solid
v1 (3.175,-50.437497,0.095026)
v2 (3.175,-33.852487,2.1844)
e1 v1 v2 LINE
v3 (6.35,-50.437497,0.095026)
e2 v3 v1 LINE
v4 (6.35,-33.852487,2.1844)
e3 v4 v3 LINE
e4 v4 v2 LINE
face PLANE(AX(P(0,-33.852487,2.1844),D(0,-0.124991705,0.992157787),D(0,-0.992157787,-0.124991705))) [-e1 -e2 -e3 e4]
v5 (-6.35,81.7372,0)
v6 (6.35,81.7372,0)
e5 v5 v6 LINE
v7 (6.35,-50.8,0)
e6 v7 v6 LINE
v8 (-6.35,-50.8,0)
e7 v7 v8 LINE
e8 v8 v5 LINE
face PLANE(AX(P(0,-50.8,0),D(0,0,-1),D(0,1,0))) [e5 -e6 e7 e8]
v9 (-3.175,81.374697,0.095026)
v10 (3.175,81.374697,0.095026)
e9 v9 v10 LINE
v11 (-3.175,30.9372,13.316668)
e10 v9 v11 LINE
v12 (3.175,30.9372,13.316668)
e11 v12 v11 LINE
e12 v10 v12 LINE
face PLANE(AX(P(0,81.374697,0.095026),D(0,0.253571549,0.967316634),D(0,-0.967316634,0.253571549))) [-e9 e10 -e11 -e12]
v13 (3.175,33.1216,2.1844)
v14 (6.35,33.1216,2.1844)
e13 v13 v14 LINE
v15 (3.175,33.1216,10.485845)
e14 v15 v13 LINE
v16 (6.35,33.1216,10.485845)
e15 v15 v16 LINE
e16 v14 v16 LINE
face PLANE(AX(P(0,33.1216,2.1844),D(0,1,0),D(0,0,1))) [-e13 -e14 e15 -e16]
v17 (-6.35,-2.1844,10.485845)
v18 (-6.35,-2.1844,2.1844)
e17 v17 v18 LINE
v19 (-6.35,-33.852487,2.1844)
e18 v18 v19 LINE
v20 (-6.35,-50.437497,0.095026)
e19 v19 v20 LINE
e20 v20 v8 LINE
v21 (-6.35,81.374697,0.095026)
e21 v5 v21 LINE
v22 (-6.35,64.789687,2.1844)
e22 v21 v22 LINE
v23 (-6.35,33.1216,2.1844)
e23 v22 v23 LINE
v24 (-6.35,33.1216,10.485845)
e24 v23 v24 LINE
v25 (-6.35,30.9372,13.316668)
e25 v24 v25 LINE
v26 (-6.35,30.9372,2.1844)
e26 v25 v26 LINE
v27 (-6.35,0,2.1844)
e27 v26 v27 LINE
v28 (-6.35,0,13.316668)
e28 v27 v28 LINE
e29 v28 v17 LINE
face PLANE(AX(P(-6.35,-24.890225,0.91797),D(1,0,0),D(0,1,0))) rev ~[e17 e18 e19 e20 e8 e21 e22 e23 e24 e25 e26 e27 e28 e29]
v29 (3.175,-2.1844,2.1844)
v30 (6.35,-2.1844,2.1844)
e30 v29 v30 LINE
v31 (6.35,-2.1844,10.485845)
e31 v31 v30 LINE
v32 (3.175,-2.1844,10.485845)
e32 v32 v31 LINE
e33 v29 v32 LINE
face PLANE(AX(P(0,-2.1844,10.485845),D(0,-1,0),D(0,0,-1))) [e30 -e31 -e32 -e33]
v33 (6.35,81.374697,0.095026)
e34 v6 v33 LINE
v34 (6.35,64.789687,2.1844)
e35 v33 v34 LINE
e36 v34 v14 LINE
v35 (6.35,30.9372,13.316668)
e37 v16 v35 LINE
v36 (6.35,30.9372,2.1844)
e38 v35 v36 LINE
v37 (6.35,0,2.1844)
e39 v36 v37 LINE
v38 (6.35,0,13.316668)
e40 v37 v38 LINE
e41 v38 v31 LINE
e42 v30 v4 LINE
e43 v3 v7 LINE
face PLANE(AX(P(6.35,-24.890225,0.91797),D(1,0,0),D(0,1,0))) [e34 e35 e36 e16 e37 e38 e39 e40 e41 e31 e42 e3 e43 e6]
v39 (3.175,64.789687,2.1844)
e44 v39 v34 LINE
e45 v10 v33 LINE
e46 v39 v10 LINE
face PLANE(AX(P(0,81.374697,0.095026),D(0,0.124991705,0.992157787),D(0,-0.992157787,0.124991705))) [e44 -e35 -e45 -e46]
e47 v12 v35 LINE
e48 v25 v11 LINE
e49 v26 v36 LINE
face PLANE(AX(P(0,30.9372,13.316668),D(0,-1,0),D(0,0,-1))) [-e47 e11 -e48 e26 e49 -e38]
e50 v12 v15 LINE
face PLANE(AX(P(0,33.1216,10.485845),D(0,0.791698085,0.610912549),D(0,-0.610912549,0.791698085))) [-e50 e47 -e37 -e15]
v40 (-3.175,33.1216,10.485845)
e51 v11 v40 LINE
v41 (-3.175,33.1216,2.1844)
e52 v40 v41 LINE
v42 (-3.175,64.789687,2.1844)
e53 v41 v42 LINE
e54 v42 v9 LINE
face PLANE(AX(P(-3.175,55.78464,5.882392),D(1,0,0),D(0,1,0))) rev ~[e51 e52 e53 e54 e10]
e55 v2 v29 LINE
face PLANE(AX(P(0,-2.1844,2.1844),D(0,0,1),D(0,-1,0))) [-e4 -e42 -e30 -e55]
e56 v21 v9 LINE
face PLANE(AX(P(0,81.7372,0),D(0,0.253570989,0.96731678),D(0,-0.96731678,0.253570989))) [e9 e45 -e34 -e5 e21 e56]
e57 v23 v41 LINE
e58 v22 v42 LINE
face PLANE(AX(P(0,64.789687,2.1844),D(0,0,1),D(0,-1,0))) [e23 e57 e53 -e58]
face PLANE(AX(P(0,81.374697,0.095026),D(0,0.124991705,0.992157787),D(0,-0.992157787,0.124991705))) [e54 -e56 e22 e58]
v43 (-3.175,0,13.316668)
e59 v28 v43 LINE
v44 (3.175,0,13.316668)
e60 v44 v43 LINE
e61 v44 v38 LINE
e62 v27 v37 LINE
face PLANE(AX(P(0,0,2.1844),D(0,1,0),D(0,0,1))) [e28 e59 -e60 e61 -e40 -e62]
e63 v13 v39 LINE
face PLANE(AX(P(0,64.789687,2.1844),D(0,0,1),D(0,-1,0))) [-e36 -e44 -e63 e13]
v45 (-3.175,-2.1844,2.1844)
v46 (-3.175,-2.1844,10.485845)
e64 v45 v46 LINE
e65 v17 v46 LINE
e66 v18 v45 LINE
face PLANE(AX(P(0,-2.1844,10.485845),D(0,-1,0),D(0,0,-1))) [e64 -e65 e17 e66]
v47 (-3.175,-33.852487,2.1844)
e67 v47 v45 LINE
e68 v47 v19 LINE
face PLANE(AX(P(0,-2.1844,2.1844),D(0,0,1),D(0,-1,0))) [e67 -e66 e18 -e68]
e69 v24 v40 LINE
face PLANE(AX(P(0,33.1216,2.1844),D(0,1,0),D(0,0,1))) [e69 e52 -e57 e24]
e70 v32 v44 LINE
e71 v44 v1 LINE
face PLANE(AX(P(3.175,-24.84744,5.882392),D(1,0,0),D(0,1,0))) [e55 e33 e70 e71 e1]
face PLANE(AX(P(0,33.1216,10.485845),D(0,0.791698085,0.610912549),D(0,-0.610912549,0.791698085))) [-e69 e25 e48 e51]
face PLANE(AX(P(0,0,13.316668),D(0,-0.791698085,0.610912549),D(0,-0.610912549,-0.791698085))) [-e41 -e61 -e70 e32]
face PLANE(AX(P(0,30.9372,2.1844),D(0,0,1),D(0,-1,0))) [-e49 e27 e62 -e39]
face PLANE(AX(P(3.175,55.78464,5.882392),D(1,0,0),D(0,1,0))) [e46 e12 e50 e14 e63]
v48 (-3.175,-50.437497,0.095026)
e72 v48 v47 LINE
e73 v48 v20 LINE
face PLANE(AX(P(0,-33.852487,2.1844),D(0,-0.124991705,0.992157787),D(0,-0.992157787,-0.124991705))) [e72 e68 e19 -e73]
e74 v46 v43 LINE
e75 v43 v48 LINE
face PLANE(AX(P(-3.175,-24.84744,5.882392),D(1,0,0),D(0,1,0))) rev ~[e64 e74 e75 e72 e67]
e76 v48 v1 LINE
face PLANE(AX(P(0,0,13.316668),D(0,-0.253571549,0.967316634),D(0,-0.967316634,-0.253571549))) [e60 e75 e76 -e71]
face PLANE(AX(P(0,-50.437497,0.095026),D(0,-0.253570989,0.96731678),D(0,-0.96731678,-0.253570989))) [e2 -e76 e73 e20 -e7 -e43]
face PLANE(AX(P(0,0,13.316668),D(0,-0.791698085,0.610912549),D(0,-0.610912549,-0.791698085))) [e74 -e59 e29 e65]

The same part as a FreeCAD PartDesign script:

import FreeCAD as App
import Part
import Sketcher
Q = App.Units.Quantity


def add_polygon(sketch, points):
    """Adds a closed chain of lines whose ends are joined by coincident constraints."""
    first, n = sketch.GeometryCount, len(points)
    for a, b in zip(points, points[1:] + points[:1]):
        sketch.addGeometry(Part.LineSegment(App.Vector(*a, 0), App.Vector(*b, 0)), False)
    for i in range(n):
        sketch.addConstraint(Sketcher.Constraint("Coincident", first + i, 2, first + (i + 1) % n, 1))

doc = App.newDocument("Part")
body = doc.addObject("PartDesign::Body", "Body")

# Sketch on YZ plane
sketch1 = doc.addObject("Sketcher::SketchObject", "Sketch")
body.addObject(sketch1)
sketch1.AttachmentSupport = (doc.YZ_Plane, [""])
sketch1.MapMode = "FlatFace"
add_polygon(sketch1, [(-50.8, 0), (81.74, 0), (81.37, 0.1), (64.79, 2.18), (33.12, 2.18), (33.12, 10.49), (30.94, 13.32), (30.94, 2.18), (0, 2.18), (0, 13.32), (-2.18, 10.49), (-2.18, 2.18), (-33.85, 2.18), (-50.44, 0.1)])  # lines 0-13
sketch1.addConstraint(Sketcher.Constraint("Horizontal", 0))
sketch1.addConstraint(Sketcher.Constraint("Horizontal", 3))
sketch1.addConstraint(Sketcher.Constraint("Vertical", 4))
sketch1.addConstraint(Sketcher.Constraint("Vertical", 6))
sketch1.addConstraint(Sketcher.Constraint("Horizontal", 7))
sketch1.addConstraint(Sketcher.Constraint("Vertical", 8))
sketch1.addConstraint(Sketcher.Constraint("Vertical", 10))
sketch1.addConstraint(Sketcher.Constraint("Horizontal", 11))
sketch1.addConstraint(Sketcher.Constraint("PointOnObject", 0, 2, -1))
sketch1.addConstraint(Sketcher.Constraint("PointOnObject", 7, 2, -2))
sketch1.addConstraint(Sketcher.Constraint("Horizontal", 3, 2, 6, 2))
sketch1.addConstraint(Sketcher.Constraint("Horizontal", 5, 2, 8, 2))
sketch1.addConstraint(Sketcher.Constraint("Horizontal", 4, 2, 9, 2))
sketch1.addConstraint(Sketcher.Constraint("Horizontal", 7, 2, 10, 2))
sketch1.addConstraint(Sketcher.Constraint("Horizontal", 1, 2, 12, 2))
sketch1.addConstraint(Sketcher.Constraint("Equal", 3, 11))
sketch1.addConstraint(Sketcher.Constraint("Equal", 5, 9))
sketch1.addConstraint(Sketcher.Constraint("Equal", 2, 12))
sketch1.addConstraint(Sketcher.Constraint("Equal", 1, 13))
sketch1.addConstraint(Sketcher.Constraint("DistanceX", 13, 2, -1, 1, Q("2 in")))
sketch1.addConstraint(Sketcher.Constraint("DistanceX", 0, 1, 0, 2, Q("5.218 in")))
sketch1.addConstraint(Sketcher.Constraint("DistanceX", 9, 2, 4, 2, Q("1.39 in")))
sketch1.addConstraint(Sketcher.Constraint("DistanceY", -1, 1, 2, 2, Q("0.086 in")))
sketch1.addConstraint(Sketcher.Constraint("Distance", 2, 16.716101))
sketch1.addConstraint(Sketcher.Constraint("Distance", 1, 0.374751))
sketch1.addConstraint(Sketcher.Constraint("DistanceX", 3, 2, 3, 1, 31.668087))
sketch1.addConstraint(Sketcher.Constraint("DistanceY", 4, 1, 4, 2, 8.301445))
sketch1.addConstraint(Sketcher.Constraint("DistanceY", 6, 2, 6, 1, 11.132268))
pad1 = doc.addObject("PartDesign::Pad", "Pad")
body.addObject(pad1)
pad1.Profile = sketch1
pad1.Type = "TwoLengths"
pad1.Length = Q("0.25 in")
pad1.Length2 = Q("0.25 in")

# Sketch on YZ plane
sketch2 = doc.addObject("Sketcher::SketchObject", "Sketch001")
body.addObject(sketch2)
sketch2.AttachmentSupport = (doc.YZ_Plane, [""])
sketch2.MapMode = "FlatFace"
add_polygon(sketch2, [(-2.2, 10.5), (0, 13.3), (-50.4, 0.1), (-33.9, 2.2), (-2.2, 2.2)])  # lines 0-4
add_polygon(sketch2, [(81.4, 0.1), (30.9, 13.3), (33.1, 10.5), (33.1, 2.2), (64.8, 2.2)])  # lines 5-9
sketch2.addConstraint(Sketcher.Constraint("Horizontal", 3))
sketch2.addConstraint(Sketcher.Constraint("Vertical", 4))
sketch2.addConstraint(Sketcher.Constraint("Vertical", 7))
sketch2.addConstraint(Sketcher.Constraint("Horizontal", 8))
sketch2.addConstraint(Sketcher.Constraint("PointOnObject", 0, 2, -2))
sketch2.addConstraint(Sketcher.Constraint("Horizontal", 0, 2, 5, 2))
sketch2.addConstraint(Sketcher.Constraint("Horizontal", 4, 2, 6, 2))
sketch2.addConstraint(Sketcher.Constraint("Horizontal", 3, 2, 7, 2))
sketch2.addConstraint(Sketcher.Constraint("Horizontal", 1, 2, 9, 2))
sketch2.addConstraint(Sketcher.Constraint("Equal", 3, 8))
sketch2.addConstraint(Sketcher.Constraint("Equal", 1, 5))
sketch2.addConstraint(Sketcher.Constraint("Equal", 0, 6))
sketch2.addConstraint(Sketcher.Constraint("DistanceX", 4, 2, 6, 2, Q("1.39 in")))
sketch2.addConstraint(Sketcher.Constraint("DistanceY", -1, 1, 2, 2, Q("0.086 in")))
sketch2.addConstraint(Sketcher.Constraint("DistanceX", 3, 2, -1, 1, Q("0.086 in")))
sketch2.addConstraint(Sketcher.Constraint("Distance", 2, 16.716101))
sketch2.addConstraint(Sketcher.Constraint("DistanceX", 3, 1, 3, 2, 31.668087))
sketch2.addConstraint(Sketcher.Constraint("DistanceY", 4, 1, 4, 2, 8.301445))
sketch2.addConstraint(Sketcher.Constraint("DistanceY", 1, 2, 0, 2, 13.221642))
sketch2.addConstraint(Sketcher.Constraint("DistanceX", 1, 2, 2, 2, 16.58501))
pad2 = doc.addObject("PartDesign::Pad", "Pad001")
body.addObject(pad2)
pad2.Profile = sketch2
pad2.Type = "TwoLengths"
pad2.Length = Q("0.125 in")
pad2.Length2 = Q("0.125 in")

doc.recompute()
